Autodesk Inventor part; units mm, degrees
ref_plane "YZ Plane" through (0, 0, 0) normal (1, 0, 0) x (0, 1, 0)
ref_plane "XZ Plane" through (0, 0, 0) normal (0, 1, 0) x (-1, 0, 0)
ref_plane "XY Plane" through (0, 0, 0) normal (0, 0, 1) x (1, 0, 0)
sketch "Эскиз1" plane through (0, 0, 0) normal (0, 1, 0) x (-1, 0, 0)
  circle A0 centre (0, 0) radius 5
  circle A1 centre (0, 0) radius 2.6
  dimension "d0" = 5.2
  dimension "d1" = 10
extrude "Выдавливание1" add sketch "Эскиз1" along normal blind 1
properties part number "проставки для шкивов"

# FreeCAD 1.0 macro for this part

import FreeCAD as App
import Part
import Sketcher

V = App.Vector
Q = App.Units.Quantity

doc = App.newDocument("Part")
body = doc.addObject("PartDesign::Body", "Body")

# Sketch on XZ plane
sketch1 = body.newObject("Sketcher::SketchObject", "Sketch")
sketch1.AttachmentSupport = (doc.getObject("XZ_Plane"), [""])
sketch1.MapMode = "FlatFace"
sketch1.addGeometry([
    Part.Circle(V(0, 0, 0), V(0, 0, 1), 5),
    Part.Circle(V(0, 0, 0), V(0, 0, 1), 2.6),
], False)
sketch1.addConstraint([
    Sketcher.Constraint("Coincident", 0, 3, -1, 1),
    Sketcher.Constraint("Coincident", 1, 3, -1, 1),
    Sketcher.Constraint("Diameter", 0, Q("10 mm")),
    Sketcher.Constraint("Diameter", 1, Q("5.2 mm")),
])
pad1 = body.newObject("PartDesign::Pad", "Pad")
pad1.Profile = sketch1
pad1.Length = 1
pad1.Reversed = True

doc.recompute()
